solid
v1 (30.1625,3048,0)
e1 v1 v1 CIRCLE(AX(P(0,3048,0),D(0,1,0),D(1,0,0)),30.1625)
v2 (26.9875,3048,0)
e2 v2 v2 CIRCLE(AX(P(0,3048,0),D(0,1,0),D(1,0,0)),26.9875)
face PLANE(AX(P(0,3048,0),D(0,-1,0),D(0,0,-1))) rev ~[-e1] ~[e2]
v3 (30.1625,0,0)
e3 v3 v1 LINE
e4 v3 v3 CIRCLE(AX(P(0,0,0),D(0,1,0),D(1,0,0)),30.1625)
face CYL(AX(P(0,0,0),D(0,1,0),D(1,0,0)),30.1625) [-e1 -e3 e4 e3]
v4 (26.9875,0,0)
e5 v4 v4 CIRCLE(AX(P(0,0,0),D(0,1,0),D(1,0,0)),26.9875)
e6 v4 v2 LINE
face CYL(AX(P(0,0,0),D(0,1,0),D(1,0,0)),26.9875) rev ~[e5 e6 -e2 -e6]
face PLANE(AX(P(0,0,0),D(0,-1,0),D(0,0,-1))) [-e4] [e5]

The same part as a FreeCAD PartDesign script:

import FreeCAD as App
import Part
import Sketcher

V = App.Vector
Q = App.Units.Quantity

doc = App.newDocument("Part")
body = doc.addObject("PartDesign::Body", "Body")

sketch1 = doc.addObject("Sketcher::SketchObject", "Sketch")
body.addObject(sketch1)
sketch1.AttachmentSupport = (doc.XZ_Plane, [""])
sketch1.MapMode = "FlatFace"
sketch1.addGeometry(Part.Circle(V(0, 0, 0), V(0, 0, 1), 30), False)
sketch1.addGeometry(Part.Circle(V(0, 0, 0), V(0, 0, 1), 27), False)
sketch1.addConstraint(Sketcher.Constraint("Coincident", 0, 3, -1, 1))
sketch1.addConstraint(Sketcher.Constraint("Coincident", 1, 3, -1, 1))
sketch1.addConstraint(Sketcher.Constraint("Diameter", 0, Q("2.375 in")))
sketch1.addConstraint(Sketcher.Constraint("Diameter", 1, Q("2.125 in")))

sketch2 = doc.addObject("Sketcher::SketchObject", "Sketch001")
body.addObject(sketch2)
sketch2.AttachmentSupport = (doc.XY_Plane, [""])
sketch2.MapMode = "FlatFace"
sketch2.addGeometry(Part.LineSegment(V(0, 0, 0), V(0, 3048, 0)), False)
sketch2.addConstraint(Sketcher.Constraint("Vertical", 0))
sketch2.addConstraint(Sketcher.Constraint("Coincident", 0, 1, -1, 1))
sketch2.addConstraint(Sketcher.Constraint("DistanceY", 0, 1, 0, 2, Q("120 in")))
doc.recompute()

additivepipe = doc.addObject("PartDesign::AdditivePipe", "AdditivePipe")
body.addObject(additivepipe)
additivepipe.Profile = sketch1
additivepipe.Spine = (sketch2, ["Edge1"])

doc.recompute()
